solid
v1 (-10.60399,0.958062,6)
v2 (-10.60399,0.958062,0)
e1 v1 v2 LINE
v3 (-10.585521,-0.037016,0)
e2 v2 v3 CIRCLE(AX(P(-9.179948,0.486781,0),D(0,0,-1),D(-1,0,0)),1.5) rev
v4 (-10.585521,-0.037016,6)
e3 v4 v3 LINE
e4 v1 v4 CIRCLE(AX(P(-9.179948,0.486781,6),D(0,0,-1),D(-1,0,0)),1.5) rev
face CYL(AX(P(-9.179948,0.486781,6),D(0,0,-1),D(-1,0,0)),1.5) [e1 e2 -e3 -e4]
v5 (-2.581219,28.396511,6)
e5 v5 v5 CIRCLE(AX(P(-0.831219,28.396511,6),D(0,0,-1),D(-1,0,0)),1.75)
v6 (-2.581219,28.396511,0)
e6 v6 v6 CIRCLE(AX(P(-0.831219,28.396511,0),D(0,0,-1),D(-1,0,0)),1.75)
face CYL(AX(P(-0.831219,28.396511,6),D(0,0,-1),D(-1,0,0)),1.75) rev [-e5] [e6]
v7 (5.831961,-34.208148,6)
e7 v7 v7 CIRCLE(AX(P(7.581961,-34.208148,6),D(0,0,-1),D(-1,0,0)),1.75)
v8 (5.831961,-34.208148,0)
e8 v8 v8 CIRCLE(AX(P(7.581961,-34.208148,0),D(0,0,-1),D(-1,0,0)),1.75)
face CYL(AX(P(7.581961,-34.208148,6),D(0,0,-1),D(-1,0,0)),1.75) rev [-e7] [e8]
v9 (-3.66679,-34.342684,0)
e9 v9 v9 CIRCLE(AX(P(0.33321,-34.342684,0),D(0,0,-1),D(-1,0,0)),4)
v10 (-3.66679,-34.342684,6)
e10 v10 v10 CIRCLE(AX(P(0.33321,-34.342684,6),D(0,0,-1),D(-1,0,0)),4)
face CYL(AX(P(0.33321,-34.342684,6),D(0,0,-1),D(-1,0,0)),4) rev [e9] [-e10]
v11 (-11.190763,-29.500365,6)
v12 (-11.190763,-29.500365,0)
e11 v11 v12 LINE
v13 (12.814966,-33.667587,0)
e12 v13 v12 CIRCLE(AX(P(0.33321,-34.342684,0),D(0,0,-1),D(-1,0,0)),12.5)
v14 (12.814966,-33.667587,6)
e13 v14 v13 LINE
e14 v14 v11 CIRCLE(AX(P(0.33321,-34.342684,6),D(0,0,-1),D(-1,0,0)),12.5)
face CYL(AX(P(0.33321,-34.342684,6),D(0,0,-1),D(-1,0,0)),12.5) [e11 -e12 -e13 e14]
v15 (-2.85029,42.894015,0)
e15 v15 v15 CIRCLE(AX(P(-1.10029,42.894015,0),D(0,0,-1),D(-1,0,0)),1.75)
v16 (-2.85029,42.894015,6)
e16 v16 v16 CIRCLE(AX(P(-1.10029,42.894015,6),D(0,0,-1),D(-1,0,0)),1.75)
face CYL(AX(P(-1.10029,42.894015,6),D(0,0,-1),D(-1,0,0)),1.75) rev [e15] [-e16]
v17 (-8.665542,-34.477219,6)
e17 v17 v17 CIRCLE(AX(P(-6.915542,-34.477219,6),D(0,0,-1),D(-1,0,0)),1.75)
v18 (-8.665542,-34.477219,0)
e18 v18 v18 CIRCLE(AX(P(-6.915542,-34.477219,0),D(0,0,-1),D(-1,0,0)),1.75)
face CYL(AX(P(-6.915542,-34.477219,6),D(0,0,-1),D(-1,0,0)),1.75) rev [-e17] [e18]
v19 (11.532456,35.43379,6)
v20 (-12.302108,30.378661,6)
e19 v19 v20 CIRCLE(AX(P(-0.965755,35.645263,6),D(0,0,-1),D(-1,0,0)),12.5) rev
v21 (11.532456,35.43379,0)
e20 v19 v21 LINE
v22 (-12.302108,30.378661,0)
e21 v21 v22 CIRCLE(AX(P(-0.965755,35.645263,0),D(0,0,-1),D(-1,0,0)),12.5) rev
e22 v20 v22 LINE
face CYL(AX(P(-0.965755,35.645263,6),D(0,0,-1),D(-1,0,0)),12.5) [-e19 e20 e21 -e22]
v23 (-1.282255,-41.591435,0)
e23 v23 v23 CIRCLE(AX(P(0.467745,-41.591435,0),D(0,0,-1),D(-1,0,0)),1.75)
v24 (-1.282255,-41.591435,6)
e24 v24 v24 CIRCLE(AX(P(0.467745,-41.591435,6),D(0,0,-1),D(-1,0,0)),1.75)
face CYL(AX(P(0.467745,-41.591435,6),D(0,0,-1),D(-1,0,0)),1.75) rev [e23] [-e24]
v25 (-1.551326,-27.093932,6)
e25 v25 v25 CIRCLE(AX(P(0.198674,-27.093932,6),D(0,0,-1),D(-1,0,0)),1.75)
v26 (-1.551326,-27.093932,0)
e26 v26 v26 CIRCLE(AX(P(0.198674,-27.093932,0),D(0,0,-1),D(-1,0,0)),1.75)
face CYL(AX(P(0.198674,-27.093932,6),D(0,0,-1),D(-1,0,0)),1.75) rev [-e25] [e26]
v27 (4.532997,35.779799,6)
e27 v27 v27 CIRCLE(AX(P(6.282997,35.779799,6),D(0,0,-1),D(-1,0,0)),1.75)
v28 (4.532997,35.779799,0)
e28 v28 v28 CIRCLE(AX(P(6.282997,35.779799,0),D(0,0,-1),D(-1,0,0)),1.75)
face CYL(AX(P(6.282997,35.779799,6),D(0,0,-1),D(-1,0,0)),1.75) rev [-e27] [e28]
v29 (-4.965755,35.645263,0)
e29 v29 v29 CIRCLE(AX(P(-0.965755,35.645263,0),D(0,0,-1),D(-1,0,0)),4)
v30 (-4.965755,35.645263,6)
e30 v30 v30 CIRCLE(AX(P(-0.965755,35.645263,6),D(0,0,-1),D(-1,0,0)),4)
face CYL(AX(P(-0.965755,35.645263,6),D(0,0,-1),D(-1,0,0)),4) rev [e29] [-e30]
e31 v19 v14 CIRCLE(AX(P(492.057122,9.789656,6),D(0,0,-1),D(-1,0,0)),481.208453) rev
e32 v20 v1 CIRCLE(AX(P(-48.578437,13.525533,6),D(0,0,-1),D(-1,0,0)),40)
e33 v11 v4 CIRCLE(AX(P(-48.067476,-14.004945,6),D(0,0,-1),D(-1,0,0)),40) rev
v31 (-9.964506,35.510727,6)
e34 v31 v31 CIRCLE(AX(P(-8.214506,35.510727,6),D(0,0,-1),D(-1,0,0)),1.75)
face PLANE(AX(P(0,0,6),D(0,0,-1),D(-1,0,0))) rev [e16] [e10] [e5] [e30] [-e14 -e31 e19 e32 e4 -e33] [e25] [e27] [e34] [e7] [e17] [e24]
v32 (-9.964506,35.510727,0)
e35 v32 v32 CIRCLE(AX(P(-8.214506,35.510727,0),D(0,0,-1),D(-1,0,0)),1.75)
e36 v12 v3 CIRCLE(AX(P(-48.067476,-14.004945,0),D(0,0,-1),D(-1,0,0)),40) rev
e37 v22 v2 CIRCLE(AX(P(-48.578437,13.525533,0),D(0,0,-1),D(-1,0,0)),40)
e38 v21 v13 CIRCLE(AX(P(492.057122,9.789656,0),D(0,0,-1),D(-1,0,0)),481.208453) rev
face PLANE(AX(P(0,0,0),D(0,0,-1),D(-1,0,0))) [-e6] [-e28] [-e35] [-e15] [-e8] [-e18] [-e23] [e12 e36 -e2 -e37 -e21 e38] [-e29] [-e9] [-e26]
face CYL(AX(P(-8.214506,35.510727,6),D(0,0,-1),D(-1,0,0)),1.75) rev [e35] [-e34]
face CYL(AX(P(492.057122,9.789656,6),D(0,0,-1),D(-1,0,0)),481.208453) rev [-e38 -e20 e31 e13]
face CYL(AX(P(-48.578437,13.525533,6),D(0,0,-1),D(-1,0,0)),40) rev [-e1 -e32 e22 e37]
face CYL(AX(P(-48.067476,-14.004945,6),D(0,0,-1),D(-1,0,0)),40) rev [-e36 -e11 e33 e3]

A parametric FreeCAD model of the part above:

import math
import FreeCAD as App
import Part
import Sketcher
from FreeCAD import Vector


def add_polygon(sketch, points):
    """Adds a closed chain of lines whose ends are joined by coincident constraints."""
    first, n = sketch.GeometryCount, len(points)
    for a, b in zip(points, points[1:] + points[:1]):
        sketch.addGeometry(Part.LineSegment(App.Vector(*a, 0), App.Vector(*b, 0)), False)
    for i in range(n):
        sketch.addConstraint(Sketcher.Constraint("Coincident", first + i, 2, first + (i + 1) % n, 1))

doc = App.newDocument("Part")
body = doc.addObject("PartDesign::Body", "Body")

sketch1 = body.newObject("Sketcher::SketchObject", "Sketch")
sketch1.AttachmentSupport = (doc.getObject("XY_Plane"), [""])
sketch1.MapMode = "FlatFace"
add_polygon(sketch1, [(-15, 50), (-15, -50), (15, -50), (15, 50)])
sketch1.addConstraint(Sketcher.Constraint("Vertical", 0))
sketch1.addConstraint(Sketcher.Constraint("Horizontal", 1))
sketch1.addConstraint(Sketcher.Constraint("Vertical", 2))
sketch1.addConstraint(Sketcher.Constraint("Horizontal", 3))
sketch1.addConstraint(Sketcher.Constraint("Symmetric", 0, 2, 2, 2, -1, 1))
sketch1.addConstraint(Sketcher.Constraint("DistanceX", 1, 1, 1, 2, 30.0))
sketch1.addConstraint(Sketcher.Constraint("DistanceY", 0, 2, 0, 1, 100.0))
pad1 = body.newObject("PartDesign::Pad", "Pad")
pad1.Profile = sketch1
pad1.Length = 6

sketch2 = body.newObject("Sketcher::SketchObject", "Sketch001")
sketch2.AttachmentSupport = (doc.getObject("XY_Plane"), [""])
sketch2.MapMode = "FlatFace"
add_polygon(sketch2, [(15, 50), (15, -50), (-15, -50), (-15, 50)])
sketch2.addGeometry(Part.ArcOfCircle(Part.Circle(Vector(492.1, 9.8, 0), Vector(0, 0, 1), 481.2), math.radians(176.95), math.radians(185.18)), False)
sketch2.addGeometry(Part.ArcOfCircle(Part.Circle(Vector(-1, 35.6, 0), Vector(0, 0, 1), 12.5), math.radians(-1), math.radians(193)), False)
sketch2.addGeometry(Part.ArcOfCircle(Part.Circle(Vector(-1, 35.6, 0), Vector(0, 0, 1), 12.5), math.radians(-167.01), math.radians(-155.08)), False)
sketch2.addGeometry(Part.ArcOfCircle(Part.Circle(Vector(-48.6, 13.5, 0), Vector(0, 0, 1), 40), math.radians(-18), math.radians(25)), False)
sketch2.addGeometry(Part.ArcOfCircle(Part.Circle(Vector(-9.2, 0.5, 0), Vector(0, 0, 1), 1.5), math.radians(162), math.radians(200)), False)
sketch2.addGeometry(Part.ArcOfCircle(Part.Circle(Vector(-48.1, -14, 0), Vector(0, 0, 1), 40), math.radians(-23), math.radians(20)), False)
sketch2.addGeometry(Part.ArcOfCircle(Part.Circle(Vector(0.3, -34.3, 0), Vector(0, 0, 1), 12.5), math.radians(157), math.radians(363)), False)
sketch2.addGeometry(Part.Circle(Vector(-1, 35.6, 0), Vector(0, 0, 1), 4), False)
sketch2.addGeometry(Part.Circle(Vector(-1.1, 42.9, 0), Vector(0, 0, 1), 1.8), False)
sketch2.addGeometry(Part.Circle(Vector(-8.2, 35.5, 0), Vector(0, 0, 1), 1.8), False)
sketch2.addGeometry(Part.Circle(Vector(-0.8, 28.4, 0), Vector(0, 0, 1), 1.8), False)
sketch2.addGeometry(Part.Circle(Vector(6.3, 35.8, 0), Vector(0, 0, 1), 1.8), False)
sketch2.addGeometry(Part.Circle(Vector(0.3, -34.3, 0), Vector(0, 0, 1), 4), False)
sketch2.addGeometry(Part.Circle(Vector(0.2, -27.1, 0), Vector(0, 0, 1), 1.8), False)
sketch2.addGeometry(Part.Circle(Vector(-6.9, -34.5, 0), Vector(0, 0, 1), 1.8), False)
sketch2.addGeometry(Part.Circle(Vector(7.6, -34.2, 0), Vector(0, 0, 1), 1.8), False)
sketch2.addGeometry(Part.Circle(Vector(0.5, -41.6, 0), Vector(0, 0, 1), 1.8), False)
sketch2.addConstraint(Sketcher.Constraint("Coincident", 4, 1, 5, 1))
sketch2.addConstraint(Sketcher.Constraint("Tangent", 5, 2, 6, 1))
sketch2.addConstraint(Sketcher.Constraint("Tangent", 6, 2, 7, 2))
sketch2.addConstraint(Sketcher.Constraint("Tangent", 7, 1, 8, 1))
sketch2.addConstraint(Sketcher.Constraint("Tangent", 8, 2, 9, 2))
sketch2.addConstraint(Sketcher.Constraint("Tangent", 9, 1, 10, 1))
sketch2.addConstraint(Sketcher.Constraint("Coincident", 10, 2, 4, 2))
sketch2.addConstraint(Sketcher.Constraint("Vertical", 0))
sketch2.addConstraint(Sketcher.Constraint("Horizontal", 1))
sketch2.addConstraint(Sketcher.Constraint("Vertical", 2))
sketch2.addConstraint(Sketcher.Constraint("Horizontal", 3))
sketch2.addConstraint(Sketcher.Constraint("Coincident", 11, 3, 5, 3))
sketch2.addConstraint(Sketcher.Constraint("Coincident", 16, 3, 10, 3))
sketch2.addConstraint(Sketcher.Constraint("Equal", 5, 6))
sketch2.addConstraint(Sketcher.Constraint("Equal", 7, 9))
sketch2.addConstraint(Sketcher.Constraint("Equal", 6, 10))
sketch2.addConstraint(Sketcher.Constraint("Equal", 12, 13))
sketch2.addConstraint(Sketcher.Constraint("Equal", 13, 14))
sketch2.addConstraint(Sketcher.Constraint("Equal", 14, 15))
sketch2.addConstraint(Sketcher.Constraint("Equal", 11, 16))
sketch2.addConstraint(Sketcher.Constraint("Equal", 15, 17))
sketch2.addConstraint(Sketcher.Constraint("Equal", 17, 18))
sketch2.addConstraint(Sketcher.Constraint("Equal", 18, 19))
sketch2.addConstraint(Sketcher.Constraint("Equal", 19, 20))
sketch2.addConstraint(Sketcher.Constraint("Symmetric", 0, 2, 2, 2, -1, 1))
sketch2.addConstraint(Sketcher.Constraint("Diameter", 11, 8.0))
sketch2.addConstraint(Sketcher.Constraint("Radius", 7, 40.0))
sketch2.addConstraint(Sketcher.Constraint("Diameter", 12, 3.5))
sketch2.addConstraint(Sketcher.Constraint("Radius", 5, 12.5))
sketch2.addConstraint(Sketcher.Constraint("Radius", 8, 1.5))
sketch2.addConstraint(Sketcher.Constraint("DistanceX", 1, 2, 1, 1, 30.0))
sketch2.addConstraint(Sketcher.Constraint("DistanceY", 0, 2, 0, 1, 100.0))
sketch2.addConstraint(Sketcher.Constraint("Radius", 4, 481.208453))
sketch2.addConstraint(Sketcher.Constraint("DistanceY", 18, 3, 8, 3, 34.964001))
sketch2.addConstraint(Sketcher.Constraint("DistanceY", -1, 1, 15, 3, 35.779799))
sketch2.addConstraint(Sketcher.Constraint("DistanceX", 9, 3, 4, 3, 540.124598))
sketch2.addConstraint(Sketcher.Constraint("DistanceY", 9, 3, 4, 3, 23.794601))
sketch2.addConstraint(Sketcher.Constraint("DistanceX", 6, 2, 13, 3, 4.087601))
sketch2.addConstraint(Sketcher.Constraint("DistanceY", 7, 1, 6, 2, 29.420599))
sketch2.addConstraint(Sketcher.Constraint("DistanceX", -1, 1, 4, 3, 492.057122))
sketch2.addConstraint(Sketcher.Constraint("DistanceY", -1, 1, 8, 3, 0.486781))
sketch2.addConstraint(Sketcher.Constraint("DistanceX", -1, 1, 10, 3, 0.33321))
sketch2.addConstraint(Sketcher.Constraint("DistanceX", 12, 3, -1, 1, 1.10029))
sketch2.addConstraint(Sketcher.Constraint("DistanceX", 14, 3, -1, 1, 0.831219))
sketch2.addConstraint(Sketcher.Constraint("DistanceY", -1, 1, 14, 3, 28.396511))
sketch2.addConstraint(Sketcher.Constraint("DistanceX", 18, 3, -1, 1, 6.915542))
sketch2.addConstraint(Sketcher.Constraint("DistanceX", -1, 1, 19, 3, 7.581961))
sketch2.addConstraint(Sketcher.Constraint("DistanceY", 19, 3, -1, 1, 34.208148))
sketch2.addConstraint(Sketcher.Constraint("DistanceY", -1, 1, 4, 1, 35.43379))
sketch2.addConstraint(Sketcher.Constraint("DistanceX", 5, 2, -1, 1, 13.145828))
sketch2.addConstraint(Sketcher.Constraint("DistanceX", 7, 1, -1, 1, 10.60399))
sketch2.addConstraint(Sketcher.Constraint("DistanceY", 6, 3, 12, 3, 7.248752))
sketch2.addConstraint(Sketcher.Constraint("DistanceX", 6, 3, 15, 3, 7.248752))
sketch2.addConstraint(Sketcher.Constraint("DistanceY", 10, 3, 17, 3, 7.248752))
sketch2.addConstraint(Sketcher.Constraint("DistanceX", 9, 3, 17, 3, 48.26615))
sketch2.addConstraint(Sketcher.Constraint("DistanceY", 20, 3, 10, 3, 7.248752))
sketch2.addConstraint(Sketcher.Constraint("DistanceX", 17, 3, 20, 3, 0.269071))
sketch2.addConstraint(Sketcher.Constraint("DistanceY", -1, 1, 13, 3, 35.510727))
pocket1 = body.newObject("PartDesign::Pocket", "Pocket")
pocket1.Profile = sketch2
pocket1.Length = 6
pocket1.Reversed = True

doc.recompute()
